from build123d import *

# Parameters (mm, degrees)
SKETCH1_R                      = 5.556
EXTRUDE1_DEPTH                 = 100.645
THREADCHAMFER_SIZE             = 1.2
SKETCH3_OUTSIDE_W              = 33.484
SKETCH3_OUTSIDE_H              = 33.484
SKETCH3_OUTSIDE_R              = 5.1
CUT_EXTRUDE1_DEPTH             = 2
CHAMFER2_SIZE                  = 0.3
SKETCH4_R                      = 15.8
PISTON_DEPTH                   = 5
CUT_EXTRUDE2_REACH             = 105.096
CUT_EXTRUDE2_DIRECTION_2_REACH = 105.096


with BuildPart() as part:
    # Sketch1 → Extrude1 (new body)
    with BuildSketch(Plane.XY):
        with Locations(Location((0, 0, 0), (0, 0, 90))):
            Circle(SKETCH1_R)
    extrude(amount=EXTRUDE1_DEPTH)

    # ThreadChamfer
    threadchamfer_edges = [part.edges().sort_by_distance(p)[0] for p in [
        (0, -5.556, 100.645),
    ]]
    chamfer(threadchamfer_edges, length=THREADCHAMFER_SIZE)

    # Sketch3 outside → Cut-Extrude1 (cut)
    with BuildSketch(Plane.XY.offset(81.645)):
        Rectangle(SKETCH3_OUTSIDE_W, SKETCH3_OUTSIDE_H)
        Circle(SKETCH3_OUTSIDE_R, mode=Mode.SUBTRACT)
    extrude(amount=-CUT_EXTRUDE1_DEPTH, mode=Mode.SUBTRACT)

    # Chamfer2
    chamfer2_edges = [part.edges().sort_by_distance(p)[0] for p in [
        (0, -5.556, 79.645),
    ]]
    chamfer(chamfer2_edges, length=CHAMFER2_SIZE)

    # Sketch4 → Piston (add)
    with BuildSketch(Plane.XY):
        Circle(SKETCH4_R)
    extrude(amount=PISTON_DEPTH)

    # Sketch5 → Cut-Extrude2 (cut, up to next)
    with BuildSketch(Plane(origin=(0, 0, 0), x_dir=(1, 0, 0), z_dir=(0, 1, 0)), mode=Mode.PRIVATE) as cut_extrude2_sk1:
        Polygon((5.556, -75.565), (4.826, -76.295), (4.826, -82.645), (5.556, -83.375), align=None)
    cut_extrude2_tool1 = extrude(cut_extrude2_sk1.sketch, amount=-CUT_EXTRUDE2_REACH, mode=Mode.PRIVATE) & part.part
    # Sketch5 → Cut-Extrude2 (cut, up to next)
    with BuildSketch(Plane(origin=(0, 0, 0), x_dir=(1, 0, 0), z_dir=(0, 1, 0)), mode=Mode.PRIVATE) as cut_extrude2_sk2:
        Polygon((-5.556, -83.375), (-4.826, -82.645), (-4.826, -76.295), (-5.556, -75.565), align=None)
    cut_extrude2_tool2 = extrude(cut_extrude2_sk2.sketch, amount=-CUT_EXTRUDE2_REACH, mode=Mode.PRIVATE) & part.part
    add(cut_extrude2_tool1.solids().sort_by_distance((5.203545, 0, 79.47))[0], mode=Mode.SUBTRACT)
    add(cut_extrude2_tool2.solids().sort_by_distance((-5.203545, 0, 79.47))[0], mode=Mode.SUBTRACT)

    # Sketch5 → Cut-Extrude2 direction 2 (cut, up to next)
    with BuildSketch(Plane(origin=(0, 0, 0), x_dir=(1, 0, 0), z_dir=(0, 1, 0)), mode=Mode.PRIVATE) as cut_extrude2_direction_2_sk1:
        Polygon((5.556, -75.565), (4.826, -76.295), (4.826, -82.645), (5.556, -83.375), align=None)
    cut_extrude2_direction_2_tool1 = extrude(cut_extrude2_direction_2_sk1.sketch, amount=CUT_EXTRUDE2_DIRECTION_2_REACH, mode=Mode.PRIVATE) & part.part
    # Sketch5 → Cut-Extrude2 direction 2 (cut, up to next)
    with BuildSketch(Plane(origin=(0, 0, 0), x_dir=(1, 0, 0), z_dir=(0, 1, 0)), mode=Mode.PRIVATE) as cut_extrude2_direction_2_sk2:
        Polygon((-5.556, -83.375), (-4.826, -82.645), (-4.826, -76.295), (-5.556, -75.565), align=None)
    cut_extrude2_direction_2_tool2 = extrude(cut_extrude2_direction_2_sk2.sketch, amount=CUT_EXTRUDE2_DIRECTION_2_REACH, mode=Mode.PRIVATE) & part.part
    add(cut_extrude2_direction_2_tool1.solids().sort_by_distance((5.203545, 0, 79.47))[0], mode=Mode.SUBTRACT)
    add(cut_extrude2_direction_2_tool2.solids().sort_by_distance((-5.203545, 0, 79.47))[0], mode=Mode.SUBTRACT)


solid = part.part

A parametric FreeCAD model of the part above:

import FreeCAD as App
import Part
import Sketcher


def edges_at(feature, points):
    """Names of the edges that pass closest to the given points."""
    edges = feature.Shape.Edges
    near = lambda p: min(range(len(edges)), key=lambda i: edges[i].distToShape(Part.Vertex(*p))[0])
    return sorted({f"Edge{near(p) + 1}" for p in points})


def add_polygon(sketch, points):
    """Adds a closed chain of lines whose ends are joined by coincident constraints."""
    first, n = sketch.GeometryCount, len(points)
    for a, b in zip(points, points[1:] + points[:1]):
        sketch.addGeometry(Part.LineSegment(App.Vector(*a, 0), App.Vector(*b, 0)), False)
    for i in range(n):
        sketch.addConstraint(Sketcher.Constraint("Coincident", first + i, 2, first + (i + 1) % n, 1))

doc = App.newDocument("Part")
params = doc.addObject("Spreadsheet::Sheet", "Params")
for row, (alias, value) in enumerate([
    ("pad1_length", "100.645 mm"),
    ("chamfer_size", "1.2 mm"),
    ("sketch2_diameter", "10.2 mm"),
    ("pocket1_length", "2 mm"),
    ("chamfer2_size", "0.3 mm"),
    ("sketch3_diameter", "31.6 mm"),
    ("pad2_length", "5 mm"),
    ("sketch4_height", "6.35 mm"),
    ("sketch4_height2", "7.81 mm"),
    ("pocket2_length", "2.752973 mm"),
    ("sketch5_height", "6.35 mm"),
    ("sketch5_height2", "7.81 mm"),
    ("pocket3_length", "2.752973 mm"),
    ("sketch6_height", "6.35 mm"),
    ("sketch6_height2", "7.81 mm"),
    ("pocket4_length", "2.752973 mm"),
    ("sketch7_height", "6.35 mm"),
    ("sketch7_height2", "7.81 mm"),
    ("pocket5_length", "2.752973 mm"),
], start=1):
    params.set(f"A{row}", alias)
    params.set(f"B{row}", "=" + value)
    params.setAlias(f"B{row}", alias)

body = doc.addObject("PartDesign::Body", "Body")

# Sketch on XY plane
sketch1 = body.newObject("Sketcher::SketchObject", "Sketch")
sketch1.AttachmentSupport = (doc.getObject("XY_Plane"), [""])
sketch1.MapMode = "FlatFace"
sketch1.addGeometry(Part.Circle(App.Vector(0, 0, 0), App.Vector(0, 0, 1), 6), False)
sketch1.addConstraint([
    Sketcher.Constraint("Coincident", 0, 3, -1, 1),
    Sketcher.Constraint("Diameter", 0, 11.112),
])
pad1 = body.newObject("PartDesign::Pad", "Pad")
pad1.Profile = sketch1
pad1.setExpression("Length", "Params.pad1_length")
doc.recompute()

chamfer = body.newObject("PartDesign::Chamfer", "Chamfer")
chamfer.Base = (pad1, edges_at(pad1, [(0, -5.556, 100.645)]))
chamfer.setExpression("Size", "Params.chamfer_size")

# Sketch on XY plane
sketch2 = body.newObject("Sketcher::SketchObject", "Sketch001")
sketch2.AttachmentSupport = (doc.getObject("XY_Plane"), [""])
sketch2.MapMode = "FlatFace"
sketch2.AttachmentOffset = App.Placement(App.Vector(0, 0, 81.645), App.Rotation())
add_polygon(sketch2, [(-17, 17), (-17, -17), (17, -17), (17, 17)])  # lines 0-3
sketch2.addGeometry(Part.Circle(App.Vector(0, 0, 0), App.Vector(0, 0, 1), 5), False)  # 4
sketch2.addConstraint([
    Sketcher.Constraint("Vertical", 0),
    Sketcher.Constraint("Horizontal", 1),
    Sketcher.Constraint("Vertical", 2),
    Sketcher.Constraint("Horizontal", 3),
    Sketcher.Constraint("Coincident", 4, 3, -1, 1),
    Sketcher.Constraint("Symmetric", 0, 2, 2, 2, -1, 1),
    Sketcher.Constraint("Equal", 3, 0),
    Sketcher.Constraint("Diameter", 4, 10.2),
    Sketcher.Constraint("DistanceX", 1, 1, 1, 2, 33.484),
])
sketch2.setExpression("Constraints[11]", "Params.sketch2_diameter")
pocket1 = body.newObject("PartDesign::Pocket", "Pocket")
pocket1.Profile = sketch2
pocket1.setExpression("Length", "Params.pocket1_length")
doc.recompute()

chamfer2 = body.newObject("PartDesign::Chamfer", "Chamfer001")
chamfer2.Base = (pocket1, edges_at(pocket1, [(0, -5.556, 79.645)]))
chamfer2.setExpression("Size", "Params.chamfer2_size")

# Sketch on XY plane
sketch3 = body.newObject("Sketcher::SketchObject", "Sketch002")
sketch3.AttachmentSupport = (doc.getObject("XY_Plane"), [""])
sketch3.MapMode = "FlatFace"
sketch3.addGeometry(Part.Circle(App.Vector(0, 0, 0), App.Vector(0, 0, 1), 16), False)
sketch3.addConstraint([
    Sketcher.Constraint("Coincident", 0, 3, -1, 1),
    Sketcher.Constraint("Diameter", 0, 31.6),
])
sketch3.setExpression("Constraints[1]", "Params.sketch3_diameter")
pad2 = body.newObject("PartDesign::Pad", "Pad001")
pad2.Profile = sketch3
pad2.setExpression("Length", "Params.pad2_length")

# Sketch on XZ plane
sketch4 = body.newObject("Sketcher::SketchObject", "Sketch003")
sketch4.AttachmentSupport = (doc.getObject("XZ_Plane"), [""])
sketch4.MapMode = "FlatFace"
add_polygon(sketch4, [(5.6, 75.6), (4.8, 76.3), (4.8, 82.6), (5.6, 83.4)])  # lines 0-3
sketch4.addConstraint([
    Sketcher.Constraint("Vertical", 1),
    Sketcher.Constraint("Vertical", 3),
    Sketcher.Constraint("Perpendicular", 0, 2),
    Sketcher.Constraint("Equal", 0, 2),
    Sketcher.Constraint("DistanceY", 1, 1, 1, 2, 6.35),
    Sketcher.Constraint("DistanceY", 3, 2, 3, 1, 7.81),
    Sketcher.Constraint("DistanceX", -1, 1, 0, 2, 4.826),
    Sketcher.Constraint("DistanceY", -1, 1, 0, 2, 76.295),
])
sketch4.setExpression("Constraints[8]", "Params.sketch4_height")
sketch4.setExpression("Constraints[9]", "Params.sketch4_height2")
pocket2 = body.newObject("PartDesign::Pocket", "Pocket001")
pocket2.Profile = sketch4
pocket2.setExpression("Length", "Params.pocket2_length")
pocket2.Reversed = True

# Sketch on XZ plane
sketch5 = body.newObject("Sketcher::SketchObject", "Sketch004")
sketch5.AttachmentSupport = (doc.getObject("XZ_Plane"), [""])
sketch5.MapMode = "FlatFace"
add_polygon(sketch5, [(-5.6, 83.4), (-4.8, 82.6), (-4.8, 76.3), (-5.6, 75.6)])  # lines 0-3
sketch5.addConstraint([
    Sketcher.Constraint("Vertical", 1),
    Sketcher.Constraint("Vertical", 3),
    Sketcher.Constraint("Perpendicular", 0, 2),
    Sketcher.Constraint("Equal", 0, 2),
    Sketcher.Constraint("DistanceY", 1, 2, 1, 1, 6.35),
    Sketcher.Constraint("DistanceY", 3, 1, 3, 2, 7.81),
    Sketcher.Constraint("DistanceX", 0, 2, -1, 1, 4.826),
    Sketcher.Constraint("DistanceY", -1, 1, 0, 2, 82.645),
])
sketch5.setExpression("Constraints[8]", "Params.sketch5_height")
sketch5.setExpression("Constraints[9]", "Params.sketch5_height2")
pocket3 = body.newObject("PartDesign::Pocket", "Pocket002")
pocket3.Profile = sketch5
pocket3.setExpression("Length", "Params.pocket3_length")
pocket3.Reversed = True

# Sketch on XZ plane
sketch6 = body.newObject("Sketcher::SketchObject", "Sketch005")
sketch6.AttachmentSupport = (doc.getObject("XZ_Plane"), [""])
sketch6.MapMode = "FlatFace"
add_polygon(sketch6, [(5.6, 75.6), (4.8, 76.3), (4.8, 82.6), (5.6, 83.4)])  # lines 0-3
sketch6.addConstraint([
    Sketcher.Constraint("Vertical", 1),
    Sketcher.Constraint("Vertical", 3),
    Sketcher.Constraint("Perpendicular", 0, 2),
    Sketcher.Constraint("Equal", 0, 2),
    Sketcher.Constraint("DistanceY", 1, 1, 1, 2, 6.35),
    Sketcher.Constraint("DistanceY", 3, 2, 3, 1, 7.81),
    Sketcher.Constraint("DistanceX", -1, 1, 0, 2, 4.826),
    Sketcher.Constraint("DistanceY", -1, 1, 0, 2, 76.295),
])
sketch6.setExpression("Constraints[8]", "Params.sketch6_height")
sketch6.setExpression("Constraints[9]", "Params.sketch6_height2")
pocket4 = body.newObject("PartDesign::Pocket", "Pocket003")
pocket4.Profile = sketch6
pocket4.setExpression("Length", "Params.pocket4_length")

# Sketch on XZ plane
sketch7 = body.newObject("Sketcher::SketchObject", "Sketch006")
sketch7.AttachmentSupport = (doc.getObject("XZ_Plane"), [""])
sketch7.MapMode = "FlatFace"
add_polygon(sketch7, [(-5.6, 83.4), (-4.8, 82.6), (-4.8, 76.3), (-5.6, 75.6)])  # lines 0-3
sketch7.addConstraint([
    Sketcher.Constraint("Vertical", 1),
    Sketcher.Constraint("Vertical", 3),
    Sketcher.Constraint("Perpendicular", 0, 2),
    Sketcher.Constraint("Equal", 0, 2),
    Sketcher.Constraint("DistanceY", 1, 2, 1, 1, 6.35),
    Sketcher.Constraint("DistanceY", 3, 1, 3, 2, 7.81),
    Sketcher.Constraint("DistanceX", 0, 2, -1, 1, 4.826),
    Sketcher.Constraint("DistanceY", -1, 1, 0, 2, 82.645),
])
sketch7.setExpression("Constraints[8]", "Params.sketch7_height")
sketch7.setExpression("Constraints[9]", "Params.sketch7_height2")
pocket5 = body.newObject("PartDesign::Pocket", "Pocket004")
pocket5.Profile = sketch7
pocket5.setExpression("Length", "Params.pocket5_length")

doc.recompute()
